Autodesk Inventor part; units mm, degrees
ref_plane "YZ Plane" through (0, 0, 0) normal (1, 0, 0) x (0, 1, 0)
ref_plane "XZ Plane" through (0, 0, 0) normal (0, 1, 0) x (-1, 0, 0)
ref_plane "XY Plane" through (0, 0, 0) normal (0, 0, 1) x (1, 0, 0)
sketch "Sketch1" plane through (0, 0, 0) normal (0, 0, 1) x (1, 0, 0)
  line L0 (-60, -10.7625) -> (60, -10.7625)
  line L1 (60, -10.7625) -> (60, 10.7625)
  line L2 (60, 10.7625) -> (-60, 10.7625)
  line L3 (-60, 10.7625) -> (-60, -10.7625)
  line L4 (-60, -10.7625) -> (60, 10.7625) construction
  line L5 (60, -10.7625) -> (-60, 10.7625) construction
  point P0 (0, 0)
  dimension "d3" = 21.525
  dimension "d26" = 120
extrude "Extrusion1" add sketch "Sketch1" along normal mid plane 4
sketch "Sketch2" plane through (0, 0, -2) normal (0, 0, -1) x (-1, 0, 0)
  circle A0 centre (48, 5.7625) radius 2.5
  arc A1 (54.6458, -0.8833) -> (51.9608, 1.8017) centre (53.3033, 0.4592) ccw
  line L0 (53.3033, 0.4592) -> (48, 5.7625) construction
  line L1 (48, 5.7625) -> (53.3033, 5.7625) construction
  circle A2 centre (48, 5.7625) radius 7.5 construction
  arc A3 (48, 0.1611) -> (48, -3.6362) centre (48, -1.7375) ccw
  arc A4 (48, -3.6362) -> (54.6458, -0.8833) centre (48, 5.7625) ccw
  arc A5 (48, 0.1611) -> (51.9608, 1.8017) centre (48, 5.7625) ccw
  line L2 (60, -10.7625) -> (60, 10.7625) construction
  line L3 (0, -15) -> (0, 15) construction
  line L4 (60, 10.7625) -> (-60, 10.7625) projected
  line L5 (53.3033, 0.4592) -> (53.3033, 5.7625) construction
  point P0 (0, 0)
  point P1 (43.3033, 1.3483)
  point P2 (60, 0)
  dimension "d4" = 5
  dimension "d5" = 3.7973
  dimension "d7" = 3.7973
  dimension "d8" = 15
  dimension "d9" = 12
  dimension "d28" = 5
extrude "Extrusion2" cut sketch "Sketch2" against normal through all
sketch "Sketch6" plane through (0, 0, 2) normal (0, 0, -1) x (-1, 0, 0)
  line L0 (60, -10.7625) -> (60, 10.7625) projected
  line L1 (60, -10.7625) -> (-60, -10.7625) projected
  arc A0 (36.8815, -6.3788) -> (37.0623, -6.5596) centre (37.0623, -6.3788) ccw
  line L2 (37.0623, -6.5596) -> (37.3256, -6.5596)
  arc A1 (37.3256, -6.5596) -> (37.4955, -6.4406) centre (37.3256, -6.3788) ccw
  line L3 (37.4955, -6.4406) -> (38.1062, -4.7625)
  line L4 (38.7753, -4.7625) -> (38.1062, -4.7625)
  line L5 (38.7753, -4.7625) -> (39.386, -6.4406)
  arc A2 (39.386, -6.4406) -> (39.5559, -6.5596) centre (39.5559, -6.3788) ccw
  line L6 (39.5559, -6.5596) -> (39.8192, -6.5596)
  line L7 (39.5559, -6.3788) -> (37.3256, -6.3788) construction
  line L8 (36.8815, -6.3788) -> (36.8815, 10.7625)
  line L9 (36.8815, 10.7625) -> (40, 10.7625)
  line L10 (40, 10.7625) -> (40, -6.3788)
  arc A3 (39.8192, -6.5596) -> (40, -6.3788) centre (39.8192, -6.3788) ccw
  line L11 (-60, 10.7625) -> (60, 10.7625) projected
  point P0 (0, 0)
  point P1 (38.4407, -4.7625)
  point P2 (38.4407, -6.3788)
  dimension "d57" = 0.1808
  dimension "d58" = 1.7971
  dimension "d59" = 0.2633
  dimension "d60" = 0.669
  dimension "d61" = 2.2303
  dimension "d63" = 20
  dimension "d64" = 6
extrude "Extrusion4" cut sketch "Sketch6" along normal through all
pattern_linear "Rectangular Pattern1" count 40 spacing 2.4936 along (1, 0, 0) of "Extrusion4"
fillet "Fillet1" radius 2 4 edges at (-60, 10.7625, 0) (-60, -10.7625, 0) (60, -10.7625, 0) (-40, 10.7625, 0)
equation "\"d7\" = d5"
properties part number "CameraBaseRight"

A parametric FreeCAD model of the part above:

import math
import FreeCAD as App
import Part
import Sketcher


def edges_at(feature, points):
    """Names of the edges that pass closest to the given points."""
    edges = feature.Shape.Edges
    near = lambda p: min(range(len(edges)), key=lambda i: edges[i].distToShape(Part.Vertex(*p))[0])
    return sorted({f"Edge{near(p) + 1}" for p in points})


def add_polygon(sketch, points):
    """Adds a closed chain of lines whose ends are joined by coincident constraints."""
    first, n = sketch.GeometryCount, len(points)
    for a, b in zip(points, points[1:] + points[:1]):
        sketch.addGeometry(Part.LineSegment(App.Vector(*a, 0), App.Vector(*b, 0)), False)
    for i in range(n):
        sketch.addConstraint(Sketcher.Constraint("Coincident", first + i, 2, first + (i + 1) % n, 1))

doc = App.newDocument("Part")
body = doc.addObject("PartDesign::Body", "Body")

# Sketch on XY plane
sketch1 = body.newObject("Sketcher::SketchObject", "Sketch")
sketch1.AttachmentSupport = (doc.getObject("XY_Plane"), [""])
sketch1.MapMode = "FlatFace"
add_polygon(sketch1, [(-60, 11), (-60, -11), (60, -11), (60, 11)])  # lines 0-3
sketch1.addConstraint(Sketcher.Constraint("Vertical", 0))
sketch1.addConstraint(Sketcher.Constraint("Horizontal", 1))
sketch1.addConstraint(Sketcher.Constraint("Vertical", 2))
sketch1.addConstraint(Sketcher.Constraint("Horizontal", 3))
sketch1.addConstraint(Sketcher.Constraint("Symmetric", 0, 2, 2, 2, -1, 1))
sketch1.addConstraint(Sketcher.Constraint("DistanceX", 1, 1, 1, 2, 120.0))
sketch1.addConstraint(Sketcher.Constraint("DistanceY", 0, 2, 0, 1, 21.525))
pad1 = body.newObject("PartDesign::Pad", "Pad")
pad1.Profile = sketch1
pad1.Length = 4
pad1.Midplane = True

# Sketch on XY plane
sketch2 = body.newObject("Sketcher::SketchObject", "Sketch001")
sketch2.AttachmentSupport = (doc.getObject("XY_Plane"), [""])
sketch2.MapMode = "FlatFace"
sketch2.AttachmentOffset = App.Placement(App.Vector(0, 0, -2), App.Rotation())
sketch2.addGeometry(Part.Circle(App.Vector(-48, 5.8, 0), App.Vector(0, 0, 1), 2.5), False)
sketch2.addGeometry(Part.ArcOfCircle(Part.Circle(App.Vector(-48, 5.8, 0), App.Vector(0, 0, 1), 9.4), math.radians(-135), math.radians(-90)), False)
sketch2.addGeometry(Part.ArcOfCircle(Part.Circle(App.Vector(-53.3, 0.5, 0), App.Vector(0, 0, 1), 1.9), math.radians(45), math.radians(225)), False)
sketch2.addGeometry(Part.ArcOfCircle(Part.Circle(App.Vector(-48, 5.8, 0), App.Vector(0, 0, 1), 5.6), math.radians(-135), math.radians(-90)), False)
sketch2.addGeometry(Part.ArcOfCircle(Part.Circle(App.Vector(-48, -1.7, 0), App.Vector(0, 0, 1), 1.9), math.radians(-90), math.radians(90)), False)
sketch2.addConstraint(Sketcher.Constraint("Tangent", 1, 1, 2, 2))
sketch2.addConstraint(Sketcher.Constraint("Tangent", 2, 1, 3, 1))
sketch2.addConstraint(Sketcher.Constraint("Tangent", 3, 2, 4, 2))
sketch2.addConstraint(Sketcher.Constraint("Tangent", 4, 1, 1, 2))
sketch2.addConstraint(Sketcher.Constraint("Coincident", 1, 3, 0, 3))
sketch2.addConstraint(Sketcher.Constraint("Coincident", 3, 3, 0, 3))
sketch2.addConstraint(Sketcher.Constraint("Vertical", 3, 3, 4, 3))
sketch2.addConstraint(Sketcher.Constraint("Diameter", 0, 5.0))
sketch2.addConstraint(Sketcher.Constraint("Radius", 2, 1.8986))
sketch2.addConstraint(Sketcher.Constraint("DistanceX", 0, 3, -1, 1, 48.0))
sketch2.addConstraint(Sketcher.Constraint("Radius", 1, 9.3987))
sketch2.addConstraint(Sketcher.Constraint("DistanceX", 1, 1, -1, 1, 54.646))
sketch2.addConstraint(Sketcher.Constraint("DistanceY", -1, 1, 3, 2, 0.161))
pocket1 = body.newObject("PartDesign::Pocket", "Pocket")
pocket1.Profile = sketch2
pocket1.Type = "ThroughAll"
pocket1.Reversed = True

# Sketch on XY plane
sketch3 = body.newObject("Sketcher::SketchObject", "Sketch002")
sketch3.AttachmentSupport = (doc.getObject("XY_Plane"), [""])
sketch3.MapMode = "FlatFace"
sketch3.AttachmentOffset = App.Placement(App.Vector(0, 0, 2), App.Rotation())
sketch3.addGeometry(Part.LineSegment(App.Vector(-36.88, 10.76, 0), App.Vector(-36.88, -6.38, 0)), False)
sketch3.addGeometry(Part.ArcOfCircle(Part.Circle(App.Vector(-37.06, -6.38, 0), App.Vector(0, 0, 1), 0.18), math.radians(-90), math.radians(0)), False)
sketch3.addGeometry(Part.LineSegment(App.Vector(-37.06, -6.56, 0), App.Vector(-37.33, -6.56, 0)), False)
sketch3.addGeometry(Part.ArcOfCircle(Part.Circle(App.Vector(-37.33, -6.38, 0), App.Vector(0, 0, 1), 0.18), math.radians(-160), math.radians(-90)), False)
sketch3.addGeometry(Part.LineSegment(App.Vector(-37.5, -6.44, 0), App.Vector(-38.11, -4.76, 0)), False)
sketch3.addGeometry(Part.LineSegment(App.Vector(-38.11, -4.76, 0), App.Vector(-38.78, -4.76, 0)), False)
sketch3.addGeometry(Part.LineSegment(App.Vector(-38.78, -4.76, 0), App.Vector(-39.39, -6.44, 0)), False)
sketch3.addGeometry(Part.ArcOfCircle(Part.Circle(App.Vector(-39.56, -6.38, 0), App.Vector(0, 0, 1), 0.18), math.radians(-90), math.radians(-20)), False)
sketch3.addGeometry(Part.LineSegment(App.Vector(-39.56, -6.56, 0), App.Vector(-39.82, -6.56, 0)), False)
sketch3.addGeometry(Part.ArcOfCircle(Part.Circle(App.Vector(-39.82, -6.38, 0), App.Vector(0, 0, 1), 0.18), math.radians(180), math.radians(270)), False)
sketch3.addGeometry(Part.LineSegment(App.Vector(-40, -6.38, 0), App.Vector(-40, 10.76, 0)), False)
sketch3.addGeometry(Part.LineSegment(App.Vector(-40, 10.76, 0), App.Vector(-36.88, 10.76, 0)), False)
sketch3.addConstraint(Sketcher.Constraint("Tangent", 0, 2, 1, 2))
sketch3.addConstraint(Sketcher.Constraint("Tangent", 1, 1, 2, 1))
sketch3.addConstraint(Sketcher.Constraint("Tangent", 2, 2, 3, 2))
sketch3.addConstraint(Sketcher.Constraint("Tangent", 3, 1, 4, 1))
sketch3.addConstraint(Sketcher.Constraint("Coincident", 4, 2, 5, 1))
sketch3.addConstraint(Sketcher.Constraint("Coincident", 5, 2, 6, 1))
sketch3.addConstraint(Sketcher.Constraint("Tangent", 6, 2, 7, 2))
sketch3.addConstraint(Sketcher.Constraint("Tangent", 7, 1, 8, 1))
sketch3.addConstraint(Sketcher.Constraint("Tangent", 8, 2, 9, 2))
sketch3.addConstraint(Sketcher.Constraint("Tangent", 9, 1, 10, 1))
sketch3.addConstraint(Sketcher.Constraint("Coincident", 10, 2, 11, 1))
sketch3.addConstraint(Sketcher.Constraint("Coincident", 11, 2, 0, 1))
sketch3.addConstraint(Sketcher.Constraint("Vertical", 0))
sketch3.addConstraint(Sketcher.Constraint("Horizontal", 2))
sketch3.addConstraint(Sketcher.Constraint("Horizontal", 5))
sketch3.addConstraint(Sketcher.Constraint("Horizontal", 8))
sketch3.addConstraint(Sketcher.Constraint("Vertical", 10))
sketch3.addConstraint(Sketcher.Constraint("Horizontal", 11))
sketch3.addConstraint(Sketcher.Constraint("Equal", 1, 3))
sketch3.addConstraint(Sketcher.Constraint("Equal", 3, 7))
sketch3.addConstraint(Sketcher.Constraint("Equal", 7, 9))
sketch3.addConstraint(Sketcher.Constraint("Horizontal", 3, 3, 7, 3))
sketch3.addConstraint(Sketcher.Constraint("Horizontal", 3, 1, 6, 2))
sketch3.addConstraint(Sketcher.Constraint("Equal", 2, 8))
sketch3.addConstraint(Sketcher.Constraint("Radius", 1, 0.1808))
sketch3.addConstraint(Sketcher.Constraint("DistanceX", 5, 2, 5, 1, 0.669))
sketch3.addConstraint(Sketcher.Constraint("DistanceX", 2, 2, 2, 1, 0.2633))
sketch3.addConstraint(Sketcher.Constraint("DistanceX", 9, 1, -1, 1, 40.0))
sketch3.addConstraint(Sketcher.Constraint("DistanceY", 2, 2, 4, 2, 1.797))
sketch3.addConstraint(Sketcher.Constraint("DistanceX", 7, 3, 3, 3, 2.2303))
sketch3.addConstraint(Sketcher.Constraint("DistanceY", 0, 2, 0, 1, 17.1413))
sketch3.addConstraint(Sketcher.Constraint("DistanceY", 1, 3, -1, 1, 6.3788))
pocket2 = body.newObject("PartDesign::Pocket", "Pocket001")
pocket2.Profile = sketch3
pocket2.Type = "ThroughAll"
doc.recompute()

linearpattern = body.newObject("PartDesign::LinearPattern", "LinearPattern")
linearpattern.Originals = [pocket2]
linearpattern.Direction = (doc.getObject("X_Axis"), [""])
linearpattern.Mode = "offset"
linearpattern.Offset = 2.4936
linearpattern.Occurrences = 40
body.Tip = linearpattern
doc.recompute()

fillet = body.newObject("PartDesign::Fillet", "Fillet")
fillet.Base = (linearpattern, edges_at(linearpattern, [
    (-60, 10.762, 0),
    (-60, -10.762, 0),
    (60, -10.762, 0),
    (-40, 10.762, 0),
]))
fillet.Radius = 2

doc.recompute()
